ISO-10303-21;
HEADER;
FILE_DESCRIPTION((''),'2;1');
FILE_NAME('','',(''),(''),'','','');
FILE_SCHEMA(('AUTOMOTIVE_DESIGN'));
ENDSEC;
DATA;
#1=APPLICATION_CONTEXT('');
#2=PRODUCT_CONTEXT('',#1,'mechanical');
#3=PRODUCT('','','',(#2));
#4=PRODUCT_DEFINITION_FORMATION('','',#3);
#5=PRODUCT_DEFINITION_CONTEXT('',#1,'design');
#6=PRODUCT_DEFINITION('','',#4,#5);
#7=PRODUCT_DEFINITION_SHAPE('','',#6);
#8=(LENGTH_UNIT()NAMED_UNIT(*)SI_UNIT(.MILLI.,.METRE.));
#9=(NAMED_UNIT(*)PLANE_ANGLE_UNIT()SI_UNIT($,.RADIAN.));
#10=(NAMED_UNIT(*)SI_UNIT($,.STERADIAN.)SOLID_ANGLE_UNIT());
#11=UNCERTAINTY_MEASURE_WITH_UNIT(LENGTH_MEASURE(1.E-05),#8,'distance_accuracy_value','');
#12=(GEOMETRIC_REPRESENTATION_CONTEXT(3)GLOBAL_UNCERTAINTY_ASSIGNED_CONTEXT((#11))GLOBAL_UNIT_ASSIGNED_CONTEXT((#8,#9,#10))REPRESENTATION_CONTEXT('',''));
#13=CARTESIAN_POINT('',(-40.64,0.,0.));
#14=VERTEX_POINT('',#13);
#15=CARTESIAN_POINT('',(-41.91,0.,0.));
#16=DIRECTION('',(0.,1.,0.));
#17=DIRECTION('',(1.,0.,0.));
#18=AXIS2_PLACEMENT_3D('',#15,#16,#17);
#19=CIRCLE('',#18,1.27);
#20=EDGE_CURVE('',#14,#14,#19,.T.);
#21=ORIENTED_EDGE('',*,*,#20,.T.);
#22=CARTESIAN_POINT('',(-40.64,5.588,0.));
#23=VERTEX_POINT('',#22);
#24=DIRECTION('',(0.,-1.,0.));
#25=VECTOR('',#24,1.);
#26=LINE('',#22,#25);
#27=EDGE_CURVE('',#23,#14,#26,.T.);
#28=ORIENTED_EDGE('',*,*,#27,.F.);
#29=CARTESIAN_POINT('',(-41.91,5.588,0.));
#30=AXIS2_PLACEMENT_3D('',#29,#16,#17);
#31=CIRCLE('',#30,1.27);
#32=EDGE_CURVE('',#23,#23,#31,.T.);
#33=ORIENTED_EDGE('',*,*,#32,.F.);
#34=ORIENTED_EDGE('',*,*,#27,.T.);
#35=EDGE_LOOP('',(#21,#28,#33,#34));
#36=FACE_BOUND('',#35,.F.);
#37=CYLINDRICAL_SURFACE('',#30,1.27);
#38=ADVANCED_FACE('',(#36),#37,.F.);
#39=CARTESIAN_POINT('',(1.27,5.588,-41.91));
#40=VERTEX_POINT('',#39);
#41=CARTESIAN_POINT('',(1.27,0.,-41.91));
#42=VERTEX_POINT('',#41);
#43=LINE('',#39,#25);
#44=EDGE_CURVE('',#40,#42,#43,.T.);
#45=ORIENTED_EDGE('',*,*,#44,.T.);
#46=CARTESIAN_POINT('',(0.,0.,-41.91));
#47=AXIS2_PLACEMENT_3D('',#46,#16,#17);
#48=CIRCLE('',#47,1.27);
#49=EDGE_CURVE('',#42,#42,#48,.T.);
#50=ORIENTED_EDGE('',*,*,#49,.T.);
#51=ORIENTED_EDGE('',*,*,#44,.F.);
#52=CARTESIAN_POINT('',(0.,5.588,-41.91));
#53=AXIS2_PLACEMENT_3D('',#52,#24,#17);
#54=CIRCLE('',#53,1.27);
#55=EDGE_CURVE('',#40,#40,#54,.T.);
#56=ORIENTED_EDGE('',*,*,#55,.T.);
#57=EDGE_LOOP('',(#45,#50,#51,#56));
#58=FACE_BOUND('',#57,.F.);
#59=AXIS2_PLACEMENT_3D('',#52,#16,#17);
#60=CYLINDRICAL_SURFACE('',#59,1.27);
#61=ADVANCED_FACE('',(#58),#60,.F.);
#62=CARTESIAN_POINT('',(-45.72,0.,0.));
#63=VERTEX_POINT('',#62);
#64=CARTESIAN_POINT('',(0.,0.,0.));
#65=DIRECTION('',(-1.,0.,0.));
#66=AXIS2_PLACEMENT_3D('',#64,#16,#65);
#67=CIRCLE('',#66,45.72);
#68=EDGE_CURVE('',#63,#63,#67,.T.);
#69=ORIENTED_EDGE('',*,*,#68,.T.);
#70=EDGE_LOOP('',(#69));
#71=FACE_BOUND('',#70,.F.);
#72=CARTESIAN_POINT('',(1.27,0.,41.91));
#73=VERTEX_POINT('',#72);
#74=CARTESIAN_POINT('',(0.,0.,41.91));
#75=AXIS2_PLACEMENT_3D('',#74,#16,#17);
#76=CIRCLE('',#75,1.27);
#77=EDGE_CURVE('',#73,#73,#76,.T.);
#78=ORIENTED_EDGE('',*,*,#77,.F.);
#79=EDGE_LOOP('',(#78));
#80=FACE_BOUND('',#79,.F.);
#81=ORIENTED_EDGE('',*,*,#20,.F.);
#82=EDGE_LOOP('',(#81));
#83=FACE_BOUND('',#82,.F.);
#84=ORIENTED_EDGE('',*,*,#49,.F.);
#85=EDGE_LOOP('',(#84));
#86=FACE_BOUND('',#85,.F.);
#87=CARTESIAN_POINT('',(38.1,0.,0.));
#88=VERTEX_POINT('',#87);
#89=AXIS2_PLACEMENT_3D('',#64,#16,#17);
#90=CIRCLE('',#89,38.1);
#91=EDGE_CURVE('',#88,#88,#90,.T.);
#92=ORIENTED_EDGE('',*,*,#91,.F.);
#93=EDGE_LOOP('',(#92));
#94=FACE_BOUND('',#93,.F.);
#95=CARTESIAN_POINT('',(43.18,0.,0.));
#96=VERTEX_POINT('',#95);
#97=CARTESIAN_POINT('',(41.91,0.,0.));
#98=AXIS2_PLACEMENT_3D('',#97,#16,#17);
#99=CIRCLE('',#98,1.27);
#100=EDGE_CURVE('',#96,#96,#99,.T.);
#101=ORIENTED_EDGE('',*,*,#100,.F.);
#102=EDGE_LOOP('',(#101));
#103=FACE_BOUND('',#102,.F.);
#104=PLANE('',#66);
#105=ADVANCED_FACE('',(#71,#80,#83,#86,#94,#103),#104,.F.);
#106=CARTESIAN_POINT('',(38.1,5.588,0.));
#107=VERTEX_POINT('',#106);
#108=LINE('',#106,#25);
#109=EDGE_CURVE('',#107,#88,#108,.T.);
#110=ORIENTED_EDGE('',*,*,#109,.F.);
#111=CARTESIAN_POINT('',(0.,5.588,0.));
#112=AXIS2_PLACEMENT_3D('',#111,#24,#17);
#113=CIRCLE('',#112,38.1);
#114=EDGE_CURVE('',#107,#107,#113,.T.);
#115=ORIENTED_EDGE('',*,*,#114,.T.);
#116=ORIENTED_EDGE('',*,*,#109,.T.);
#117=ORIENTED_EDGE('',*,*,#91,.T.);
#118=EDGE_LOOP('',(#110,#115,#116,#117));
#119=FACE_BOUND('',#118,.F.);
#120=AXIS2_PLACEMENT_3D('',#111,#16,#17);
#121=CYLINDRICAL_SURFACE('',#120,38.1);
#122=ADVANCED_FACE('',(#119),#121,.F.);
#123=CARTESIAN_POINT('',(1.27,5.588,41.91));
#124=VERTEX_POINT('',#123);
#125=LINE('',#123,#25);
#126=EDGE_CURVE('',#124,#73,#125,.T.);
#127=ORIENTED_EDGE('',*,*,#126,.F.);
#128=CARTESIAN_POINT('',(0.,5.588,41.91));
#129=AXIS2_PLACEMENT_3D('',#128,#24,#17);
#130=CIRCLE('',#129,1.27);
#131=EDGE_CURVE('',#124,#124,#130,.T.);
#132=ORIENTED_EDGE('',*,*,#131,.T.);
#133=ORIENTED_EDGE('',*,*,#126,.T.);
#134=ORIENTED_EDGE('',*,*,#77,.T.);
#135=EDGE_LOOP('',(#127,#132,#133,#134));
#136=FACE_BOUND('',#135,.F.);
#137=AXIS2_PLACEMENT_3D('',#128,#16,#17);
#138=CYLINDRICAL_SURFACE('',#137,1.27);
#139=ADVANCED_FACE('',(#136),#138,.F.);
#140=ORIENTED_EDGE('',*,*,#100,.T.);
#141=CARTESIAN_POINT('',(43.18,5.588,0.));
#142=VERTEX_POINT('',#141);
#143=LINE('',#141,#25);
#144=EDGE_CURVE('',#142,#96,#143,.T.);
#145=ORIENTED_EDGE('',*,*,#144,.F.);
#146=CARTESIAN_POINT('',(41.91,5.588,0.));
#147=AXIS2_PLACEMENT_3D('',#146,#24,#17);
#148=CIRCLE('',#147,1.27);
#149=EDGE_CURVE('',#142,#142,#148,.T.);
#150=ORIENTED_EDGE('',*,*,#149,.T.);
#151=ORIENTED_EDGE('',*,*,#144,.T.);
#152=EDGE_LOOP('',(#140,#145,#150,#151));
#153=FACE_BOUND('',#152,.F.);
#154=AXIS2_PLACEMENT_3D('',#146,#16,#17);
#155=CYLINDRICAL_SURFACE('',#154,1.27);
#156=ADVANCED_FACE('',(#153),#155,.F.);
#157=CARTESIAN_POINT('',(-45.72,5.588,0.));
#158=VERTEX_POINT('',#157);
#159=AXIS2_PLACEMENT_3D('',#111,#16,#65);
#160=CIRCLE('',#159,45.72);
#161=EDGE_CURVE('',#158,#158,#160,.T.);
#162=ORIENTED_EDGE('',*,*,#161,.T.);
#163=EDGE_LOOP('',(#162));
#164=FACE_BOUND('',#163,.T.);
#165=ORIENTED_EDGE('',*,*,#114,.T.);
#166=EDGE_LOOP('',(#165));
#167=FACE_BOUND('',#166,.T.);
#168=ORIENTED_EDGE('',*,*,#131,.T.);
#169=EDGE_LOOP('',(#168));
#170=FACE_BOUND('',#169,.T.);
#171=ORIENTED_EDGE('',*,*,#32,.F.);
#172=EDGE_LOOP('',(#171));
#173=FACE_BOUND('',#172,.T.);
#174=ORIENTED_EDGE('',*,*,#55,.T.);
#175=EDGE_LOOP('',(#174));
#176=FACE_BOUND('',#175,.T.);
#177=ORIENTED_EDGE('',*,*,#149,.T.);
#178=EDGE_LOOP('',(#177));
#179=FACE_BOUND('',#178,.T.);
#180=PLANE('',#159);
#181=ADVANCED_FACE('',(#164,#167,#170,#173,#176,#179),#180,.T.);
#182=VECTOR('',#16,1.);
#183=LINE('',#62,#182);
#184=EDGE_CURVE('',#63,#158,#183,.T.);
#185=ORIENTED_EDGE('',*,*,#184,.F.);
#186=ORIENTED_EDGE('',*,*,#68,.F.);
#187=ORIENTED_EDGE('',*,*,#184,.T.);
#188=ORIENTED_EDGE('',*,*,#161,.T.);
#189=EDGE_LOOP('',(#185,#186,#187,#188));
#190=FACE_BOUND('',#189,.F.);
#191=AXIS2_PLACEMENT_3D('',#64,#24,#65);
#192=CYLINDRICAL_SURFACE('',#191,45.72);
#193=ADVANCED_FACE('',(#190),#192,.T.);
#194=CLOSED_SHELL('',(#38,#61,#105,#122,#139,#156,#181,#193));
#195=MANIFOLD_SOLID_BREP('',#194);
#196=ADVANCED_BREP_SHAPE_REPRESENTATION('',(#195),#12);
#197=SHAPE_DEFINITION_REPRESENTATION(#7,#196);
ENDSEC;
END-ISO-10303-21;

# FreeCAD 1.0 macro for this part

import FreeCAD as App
import Part
import Sketcher
from FreeCAD import Vector
Q = App.Units.Quantity

doc = App.newDocument("Part")
params = doc.addObject("Spreadsheet::Sheet", "Params")
for row, (alias, value) in enumerate([
    ("sketch1_diameter", "3.6 in"),
    ("pad1_length", "0.22 in"),
    ("sketch2_diameter", "3 in"),
    ("sketch2_diameter2", "0.1 in"),
    ("pocket1_length", "0.22 in"),
], start=1):
    params.set(f"A{row}", alias)
    params.set(f"B{row}", "=" + value)
    params.setAlias(f"B{row}", alias)

body = doc.addObject("PartDesign::Body", "Body")

# Sketch on XZ plane
sketch1 = doc.addObject("Sketcher::SketchObject", "Sketch")
body.addObject(sketch1)
sketch1.AttachmentSupport = (doc.XZ_Plane, [""])
sketch1.MapMode = "FlatFace"
sketch1.addGeometry(Part.Circle(Vector(0, 0, 0), Vector(0, 0, 1), 45.72), False)
sketch1.addConstraint([
    Sketcher.Constraint("Coincident", 0, 3, -1, 1),
    Sketcher.Constraint("Diameter", 0, Q("3.6 in")),
])
sketch1.setExpression("Constraints[1]", "Params.sketch1_diameter")
pad1 = doc.addObject("PartDesign::Pad", "Pad")
body.addObject(pad1)
pad1.Profile = sketch1
pad1.setExpression("Length", "Params.pad1_length")
pad1.Reversed = True

# Sketch on XZ plane
sketch2 = doc.addObject("Sketcher::SketchObject", "Sketch001")
body.addObject(sketch2)
sketch2.AttachmentSupport = (doc.XZ_Plane, [""])
sketch2.MapMode = "FlatFace"
sketch2.AttachmentOffset = App.Placement(Vector(0, 0, -0.22 * 25.4), App.Rotation())
sketch2.addGeometry([
    Part.Circle(Vector(0, 0, 0), Vector(0, 0, 1), 38.1),  # 0
    Part.Circle(Vector(0, 41.91, 0), Vector(0, 0, 1), 1.27),  # 1
    Part.Circle(Vector(-41.91, 0, 0), Vector(0, 0, 1), 1.27),  # 2
    Part.Circle(Vector(0, -41.91, 0), Vector(0, 0, 1), 1.27),  # 3
    Part.Circle(Vector(41.91, 0, 0), Vector(0, 0, 1), 1.27),  # 4
], False)
sketch2.addConstraint([
    Sketcher.Constraint("Coincident", 0, 3, -1, 1),
    Sketcher.Constraint("Equal", 1, 2),
    Sketcher.Constraint("Equal", 2, 3),
    Sketcher.Constraint("Equal", 3, 4),
    Sketcher.Constraint("Symmetric", 1, 3, 3, 3, -1, 1),
    Sketcher.Constraint("Symmetric", 2, 3, 4, 3, -1, 1),
    Sketcher.Constraint("PointOnObject", 1, 3, -2),
    Sketcher.Constraint("PointOnObject", 2, 3, -1),
    Sketcher.Constraint("Diameter", 0, Q("3 in")),
    Sketcher.Constraint("Diameter", 1, Q("0.1 in")),
    Sketcher.Constraint("DistanceY", -1, 1, 1, 3, Q("1.65 in")),
    Sketcher.Constraint("DistanceX", 2, 3, -1, 1, Q("1.65 in")),
])
sketch2.setExpression("Constraints[8]", "Params.sketch2_diameter")
sketch2.setExpression("Constraints[9]", "Params.sketch2_diameter2")
pocket1 = doc.addObject("PartDesign::Pocket", "Pocket")
body.addObject(pocket1)
pocket1.Profile = sketch2
pocket1.setExpression("Length", "Params.pocket1_length")
pocket1.Reversed = True

doc.recompute()
